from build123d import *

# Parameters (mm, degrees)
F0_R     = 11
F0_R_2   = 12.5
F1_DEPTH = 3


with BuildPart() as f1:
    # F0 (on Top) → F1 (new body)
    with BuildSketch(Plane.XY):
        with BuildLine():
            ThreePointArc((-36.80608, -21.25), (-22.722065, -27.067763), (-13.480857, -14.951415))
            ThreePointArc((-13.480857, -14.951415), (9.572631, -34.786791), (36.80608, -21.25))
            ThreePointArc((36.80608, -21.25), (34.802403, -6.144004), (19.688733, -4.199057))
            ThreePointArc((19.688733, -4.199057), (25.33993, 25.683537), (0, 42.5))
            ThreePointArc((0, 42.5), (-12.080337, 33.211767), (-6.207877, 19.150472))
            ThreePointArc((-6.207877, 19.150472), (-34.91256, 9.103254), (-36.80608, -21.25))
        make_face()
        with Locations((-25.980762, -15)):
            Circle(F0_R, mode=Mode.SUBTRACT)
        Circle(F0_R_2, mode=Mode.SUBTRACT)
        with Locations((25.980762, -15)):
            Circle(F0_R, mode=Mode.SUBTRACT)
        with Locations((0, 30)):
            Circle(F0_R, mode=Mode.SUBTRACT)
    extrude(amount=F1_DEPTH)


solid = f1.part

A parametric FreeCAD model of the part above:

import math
import FreeCAD as App
import Part
import Sketcher
from FreeCAD import Vector

doc = App.newDocument("Part")
params = doc.addObject("Spreadsheet::Sheet", "Params")
for row, (alias, value) in enumerate([
    ("sketch1_diameter", "22 mm"),
    ("sketch1_diameter2", "25 mm"),
    ("sketch1_radius", "27.500001 mm"),
    ("pad1_length", "3 mm"),
], start=1):
    params.set(f"A{row}", alias)
    params.set(f"B{row}", "=" + value)
    params.setAlias(f"B{row}", alias)

body = doc.addObject("PartDesign::Body", "Body")

sketch1 = body.newObject("Sketcher::SketchObject", "Sketch")
sketch1.AttachmentSupport = (doc.getObject("XY_Plane"), [""])
sketch1.MapMode = "FlatFace"
sketch1.addGeometry(Part.ArcOfCircle(Part.Circle(Vector(-26, -15, 0), Vector(0, 0, 1), 12), math.radians(-150), math.radians(0)), False)
sketch1.addGeometry(Part.ArcOfCircle(Part.Circle(Vector(13, -7, 0), Vector(0, 0, 1), 28), math.radians(-164), math.radians(-30)), False)
sketch1.addGeometry(Part.ArcOfCircle(Part.Circle(Vector(26, -15, 0), Vector(0, 0, 1), 13), math.radians(-30), math.radians(120)), False)
sketch1.addGeometry(Part.ArcOfCircle(Part.Circle(Vector(0, 15, 0), Vector(0, 0, 1), 27), math.radians(-44), math.radians(90)), False)
sketch1.addGeometry(Part.ArcOfCircle(Part.Circle(Vector(0, 30, 0), Vector(0, 0, 1), 13), math.radians(90), math.radians(240)), False)
sketch1.addGeometry(Part.ArcOfCircle(Part.Circle(Vector(-13, -8, 0), Vector(0, 0, 1), 28), math.radians(76), math.radians(210)), False)
sketch1.addGeometry(Part.Circle(Vector(-26, -15, 0), Vector(0, 0, 1), 11), False)
sketch1.addGeometry(Part.Circle(Vector(26, -15, 0), Vector(0, 0, 1), 11), False)
sketch1.addGeometry(Part.Circle(Vector(0, 0, 0), Vector(0, 0, 1), 12), False)
sketch1.addGeometry(Part.Circle(Vector(0, 30, 0), Vector(0, 0, 1), 11), False)
sketch1.addConstraint(Sketcher.Constraint("Coincident", 0, 2, 1, 1))
sketch1.addConstraint(Sketcher.Constraint("Tangent", 1, 2, 2, 1))
sketch1.addConstraint(Sketcher.Constraint("Coincident", 2, 2, 3, 1))
sketch1.addConstraint(Sketcher.Constraint("Tangent", 3, 2, 4, 1))
sketch1.addConstraint(Sketcher.Constraint("Coincident", 4, 2, 5, 1))
sketch1.addConstraint(Sketcher.Constraint("Tangent", 5, 2, 0, 1))
sketch1.addConstraint(Sketcher.Constraint("Coincident", 8, 3, -1, 1))
sketch1.addConstraint(Sketcher.Constraint("Coincident", 6, 3, 0, 3))
sketch1.addConstraint(Sketcher.Constraint("Coincident", 7, 3, 2, 3))
sketch1.addConstraint(Sketcher.Constraint("Coincident", 9, 3, 4, 3))
sketch1.addConstraint(Sketcher.Constraint("Equal", 0, 2))
sketch1.addConstraint(Sketcher.Constraint("Equal", 1, 3))
sketch1.addConstraint(Sketcher.Constraint("Equal", 2, 4))
sketch1.addConstraint(Sketcher.Constraint("Equal", 3, 5))
sketch1.addConstraint(Sketcher.Constraint("Equal", 6, 7))
sketch1.addConstraint(Sketcher.Constraint("Equal", 4, 8))
sketch1.addConstraint(Sketcher.Constraint("Equal", 7, 9))
sketch1.addConstraint(Sketcher.Constraint("Symmetric", 0, 3, 2, 3, -2))
sketch1.addConstraint(Sketcher.Constraint("PointOnObject", 3, 3, -2))
sketch1.addConstraint(Sketcher.Constraint("PointOnObject", 4, 3, -2))
sketch1.addConstraint(Sketcher.Constraint("Horizontal", 1, 2, 5, 2))
sketch1.addConstraint(Sketcher.Constraint("Diameter", 6, 22.0))
sketch1.addConstraint(Sketcher.Constraint("Diameter", 8, 25.0))
sketch1.addConstraint(Sketcher.Constraint("Radius", 1, 27.500001))
sketch1.addConstraint(Sketcher.Constraint("DistanceY", 0, 3, -1, 1, 15.000001))
sketch1.addConstraint(Sketcher.Constraint("DistanceY", -1, 1, 3, 3, 15.0))
sketch1.addConstraint(Sketcher.Constraint("DistanceY", 1, 3, -1, 1, 7.499999))
sketch1.addConstraint(Sketcher.Constraint("DistanceX", -1, 1, 1, 3, 12.990381))
sketch1.setExpression("Constraints[21]", "Params.sketch1_diameter")
sketch1.setExpression("Constraints[22]", "Params.sketch1_diameter2")
sketch1.setExpression("Constraints[23]", "Params.sketch1_radius")
pad1 = body.newObject("PartDesign::Pad", "Pad")
pad1.Profile = sketch1
pad1.setExpression("Length", "Params.pad1_length")

doc.recompute()
